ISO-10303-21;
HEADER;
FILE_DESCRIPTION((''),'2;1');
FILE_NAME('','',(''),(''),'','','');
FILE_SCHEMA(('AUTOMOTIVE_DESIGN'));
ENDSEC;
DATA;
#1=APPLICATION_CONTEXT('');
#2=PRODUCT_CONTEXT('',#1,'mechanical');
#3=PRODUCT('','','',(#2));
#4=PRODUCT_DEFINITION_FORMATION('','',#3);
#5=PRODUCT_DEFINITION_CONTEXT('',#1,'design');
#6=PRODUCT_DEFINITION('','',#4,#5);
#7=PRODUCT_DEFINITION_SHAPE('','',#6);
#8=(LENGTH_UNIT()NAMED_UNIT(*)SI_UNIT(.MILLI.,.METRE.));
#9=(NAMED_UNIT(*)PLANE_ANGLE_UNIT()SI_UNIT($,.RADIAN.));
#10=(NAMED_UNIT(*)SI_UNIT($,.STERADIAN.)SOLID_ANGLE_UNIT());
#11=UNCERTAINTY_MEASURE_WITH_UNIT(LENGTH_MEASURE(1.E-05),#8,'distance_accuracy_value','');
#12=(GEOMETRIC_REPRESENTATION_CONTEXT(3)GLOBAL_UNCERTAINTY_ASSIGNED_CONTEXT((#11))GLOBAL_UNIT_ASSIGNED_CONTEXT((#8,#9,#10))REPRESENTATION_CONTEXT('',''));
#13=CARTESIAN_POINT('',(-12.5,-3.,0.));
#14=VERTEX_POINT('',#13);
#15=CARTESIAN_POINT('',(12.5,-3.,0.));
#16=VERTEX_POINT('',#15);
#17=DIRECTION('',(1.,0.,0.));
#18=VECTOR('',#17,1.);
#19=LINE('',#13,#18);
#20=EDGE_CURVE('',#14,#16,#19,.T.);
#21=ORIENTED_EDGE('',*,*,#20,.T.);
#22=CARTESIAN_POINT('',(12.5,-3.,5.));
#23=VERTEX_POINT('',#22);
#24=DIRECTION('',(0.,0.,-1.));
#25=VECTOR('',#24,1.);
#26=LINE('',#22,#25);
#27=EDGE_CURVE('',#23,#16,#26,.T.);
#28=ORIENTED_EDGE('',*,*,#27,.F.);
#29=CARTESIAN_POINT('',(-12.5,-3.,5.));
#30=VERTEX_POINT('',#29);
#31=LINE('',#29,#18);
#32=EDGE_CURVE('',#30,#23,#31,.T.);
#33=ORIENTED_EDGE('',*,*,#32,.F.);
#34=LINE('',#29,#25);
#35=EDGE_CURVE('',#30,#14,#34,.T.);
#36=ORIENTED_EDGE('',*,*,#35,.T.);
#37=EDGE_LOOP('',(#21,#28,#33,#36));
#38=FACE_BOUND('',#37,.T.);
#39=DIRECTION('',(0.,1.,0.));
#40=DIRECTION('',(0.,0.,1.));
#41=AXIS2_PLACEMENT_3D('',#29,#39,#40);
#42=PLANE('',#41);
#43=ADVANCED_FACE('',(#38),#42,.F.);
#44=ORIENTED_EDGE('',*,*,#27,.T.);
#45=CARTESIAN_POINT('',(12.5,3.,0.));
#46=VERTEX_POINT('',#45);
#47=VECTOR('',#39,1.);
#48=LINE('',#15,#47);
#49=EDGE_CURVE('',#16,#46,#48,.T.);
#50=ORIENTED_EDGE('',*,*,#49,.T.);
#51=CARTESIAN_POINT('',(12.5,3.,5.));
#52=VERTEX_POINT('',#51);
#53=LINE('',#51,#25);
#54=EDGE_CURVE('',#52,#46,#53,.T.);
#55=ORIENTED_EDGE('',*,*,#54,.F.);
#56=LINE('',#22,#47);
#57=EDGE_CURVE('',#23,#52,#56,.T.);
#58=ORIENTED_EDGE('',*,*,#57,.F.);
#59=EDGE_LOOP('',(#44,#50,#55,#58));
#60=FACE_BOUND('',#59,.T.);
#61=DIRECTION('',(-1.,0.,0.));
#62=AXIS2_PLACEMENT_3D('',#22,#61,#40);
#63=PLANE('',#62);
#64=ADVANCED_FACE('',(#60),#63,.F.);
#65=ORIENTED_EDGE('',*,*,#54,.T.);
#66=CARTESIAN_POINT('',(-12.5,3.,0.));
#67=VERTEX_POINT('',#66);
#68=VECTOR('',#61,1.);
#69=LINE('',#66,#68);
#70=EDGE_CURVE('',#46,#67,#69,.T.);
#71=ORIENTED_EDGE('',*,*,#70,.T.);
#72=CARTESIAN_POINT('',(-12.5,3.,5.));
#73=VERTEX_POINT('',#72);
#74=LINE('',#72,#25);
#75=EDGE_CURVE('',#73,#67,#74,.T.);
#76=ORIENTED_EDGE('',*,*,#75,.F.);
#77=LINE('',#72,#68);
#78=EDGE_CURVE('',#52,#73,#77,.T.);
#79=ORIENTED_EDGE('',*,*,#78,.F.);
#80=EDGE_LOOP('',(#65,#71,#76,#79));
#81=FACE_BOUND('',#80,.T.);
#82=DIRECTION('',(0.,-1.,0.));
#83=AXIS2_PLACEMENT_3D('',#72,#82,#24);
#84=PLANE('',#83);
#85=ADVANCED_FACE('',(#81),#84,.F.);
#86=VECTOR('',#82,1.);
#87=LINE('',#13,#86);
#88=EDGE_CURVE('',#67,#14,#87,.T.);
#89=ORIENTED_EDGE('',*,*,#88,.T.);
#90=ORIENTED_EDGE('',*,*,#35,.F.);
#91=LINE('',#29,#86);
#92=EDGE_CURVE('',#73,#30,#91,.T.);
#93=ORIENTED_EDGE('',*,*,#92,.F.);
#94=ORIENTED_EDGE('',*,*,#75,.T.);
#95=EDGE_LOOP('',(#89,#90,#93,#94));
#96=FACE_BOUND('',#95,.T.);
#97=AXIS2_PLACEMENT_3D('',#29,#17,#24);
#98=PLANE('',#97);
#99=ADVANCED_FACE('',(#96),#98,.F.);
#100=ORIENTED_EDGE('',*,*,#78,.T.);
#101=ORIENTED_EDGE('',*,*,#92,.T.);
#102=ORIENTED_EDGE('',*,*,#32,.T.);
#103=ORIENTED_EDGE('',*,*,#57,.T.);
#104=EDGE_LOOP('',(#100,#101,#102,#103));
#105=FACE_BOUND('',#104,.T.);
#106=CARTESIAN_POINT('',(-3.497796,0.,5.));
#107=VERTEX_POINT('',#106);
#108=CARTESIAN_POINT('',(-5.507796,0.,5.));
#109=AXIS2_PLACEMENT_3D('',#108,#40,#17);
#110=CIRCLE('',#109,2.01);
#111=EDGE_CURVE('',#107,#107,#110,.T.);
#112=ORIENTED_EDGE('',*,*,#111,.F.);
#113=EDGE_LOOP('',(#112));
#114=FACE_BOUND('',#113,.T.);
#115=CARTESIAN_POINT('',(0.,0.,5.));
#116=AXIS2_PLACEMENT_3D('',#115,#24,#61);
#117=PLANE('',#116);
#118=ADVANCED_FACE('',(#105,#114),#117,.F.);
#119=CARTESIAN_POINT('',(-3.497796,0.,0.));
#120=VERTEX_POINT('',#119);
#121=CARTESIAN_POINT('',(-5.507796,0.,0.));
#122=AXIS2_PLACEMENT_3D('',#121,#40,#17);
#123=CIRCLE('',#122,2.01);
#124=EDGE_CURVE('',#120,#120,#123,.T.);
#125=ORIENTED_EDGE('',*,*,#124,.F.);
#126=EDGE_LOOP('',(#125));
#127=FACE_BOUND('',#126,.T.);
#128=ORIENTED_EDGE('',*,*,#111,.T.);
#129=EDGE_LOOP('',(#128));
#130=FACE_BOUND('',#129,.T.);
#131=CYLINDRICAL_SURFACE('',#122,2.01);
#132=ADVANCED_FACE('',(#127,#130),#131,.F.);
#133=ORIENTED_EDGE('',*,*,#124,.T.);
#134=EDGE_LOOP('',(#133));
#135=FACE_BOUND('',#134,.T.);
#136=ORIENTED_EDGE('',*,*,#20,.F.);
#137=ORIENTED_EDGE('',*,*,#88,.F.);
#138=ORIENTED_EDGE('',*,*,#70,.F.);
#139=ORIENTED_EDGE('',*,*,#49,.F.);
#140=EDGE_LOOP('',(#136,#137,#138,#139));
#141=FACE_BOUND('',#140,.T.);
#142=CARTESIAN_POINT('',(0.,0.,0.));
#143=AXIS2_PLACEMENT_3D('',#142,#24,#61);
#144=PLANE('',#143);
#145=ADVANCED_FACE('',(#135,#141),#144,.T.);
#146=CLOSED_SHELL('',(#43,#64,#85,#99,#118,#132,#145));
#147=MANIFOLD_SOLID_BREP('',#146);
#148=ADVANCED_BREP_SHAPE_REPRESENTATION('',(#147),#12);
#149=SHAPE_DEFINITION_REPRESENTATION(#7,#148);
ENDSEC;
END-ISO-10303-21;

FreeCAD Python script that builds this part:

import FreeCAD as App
import Part
import Sketcher
from FreeCAD import Vector
Q = App.Units.Quantity

doc = App.newDocument("Part")
body = doc.addObject("PartDesign::Body", "Body")

# Sketch on XY plane
sketch1 = body.newObject("Sketcher::SketchObject", "Sketch")
sketch1.AttachmentSupport = (doc.getObject("XY_Plane"), [""])
sketch1.MapMode = "FlatFace"
sketch1.addGeometry(Part.LineSegment(Vector(-12.5, 3, 0), Vector(-12.5, -3, 0)), False)
sketch1.addGeometry(Part.LineSegment(Vector(-12.5, -3, 0), Vector(12.5, -3, 0)), False)
sketch1.addGeometry(Part.LineSegment(Vector(12.5, -3, 0), Vector(12.5, 3, 0)), False)
sketch1.addGeometry(Part.LineSegment(Vector(12.5, 3, 0), Vector(-12.5, 3, 0)), False)
sketch1.addConstraint(Sketcher.Constraint("Coincident", 0, 2, 1, 1))
sketch1.addConstraint(Sketcher.Constraint("Coincident", 1, 2, 2, 1))
sketch1.addConstraint(Sketcher.Constraint("Coincident", 2, 2, 3, 1))
sketch1.addConstraint(Sketcher.Constraint("Coincident", 3, 2, 0, 1))
sketch1.addConstraint(Sketcher.Constraint("Vertical", 0))
sketch1.addConstraint(Sketcher.Constraint("Horizontal", 1))
sketch1.addConstraint(Sketcher.Constraint("Vertical", 2))
sketch1.addConstraint(Sketcher.Constraint("Horizontal", 3))
sketch1.addConstraint(Sketcher.Constraint("Symmetric", 0, 2, 2, 2, -1, 1))
sketch1.addConstraint(Sketcher.Constraint("DistanceX", 1, 1, 1, 2, Q("25 mm")))
sketch1.addConstraint(Sketcher.Constraint("DistanceY", 0, 2, 0, 1, Q("6 mm")))
pad1 = body.newObject("PartDesign::Pad", "Pad")
pad1.Profile = sketch1
pad1.Length = 5

# Sketch on XY plane
sketch2 = body.newObject("Sketcher::SketchObject", "Sketch001")
sketch2.AttachmentSupport = (doc.getObject("XY_Plane"), [""])
sketch2.MapMode = "FlatFace"
sketch2.AttachmentOffset = App.Placement(Vector(0, 0, 5), App.Rotation())
sketch2.addGeometry(Part.Circle(Vector(-5.507796, 0, 0), Vector(0, 0, 1), 2.01), False)
sketch2.addConstraint(Sketcher.Constraint("PointOnObject", 0, 3, -1))
sketch2.addConstraint(Sketcher.Constraint("Diameter", 0, Q("4.02 mm")))
sketch2.addConstraint(Sketcher.Constraint("DistanceX", 0, 3, -1, 1, Q("5.507796 mm")))
pocket1 = body.newObject("PartDesign::Pocket", "Pocket")
pocket1.Profile = sketch2
pocket1.Length = 5

doc.recompute()
